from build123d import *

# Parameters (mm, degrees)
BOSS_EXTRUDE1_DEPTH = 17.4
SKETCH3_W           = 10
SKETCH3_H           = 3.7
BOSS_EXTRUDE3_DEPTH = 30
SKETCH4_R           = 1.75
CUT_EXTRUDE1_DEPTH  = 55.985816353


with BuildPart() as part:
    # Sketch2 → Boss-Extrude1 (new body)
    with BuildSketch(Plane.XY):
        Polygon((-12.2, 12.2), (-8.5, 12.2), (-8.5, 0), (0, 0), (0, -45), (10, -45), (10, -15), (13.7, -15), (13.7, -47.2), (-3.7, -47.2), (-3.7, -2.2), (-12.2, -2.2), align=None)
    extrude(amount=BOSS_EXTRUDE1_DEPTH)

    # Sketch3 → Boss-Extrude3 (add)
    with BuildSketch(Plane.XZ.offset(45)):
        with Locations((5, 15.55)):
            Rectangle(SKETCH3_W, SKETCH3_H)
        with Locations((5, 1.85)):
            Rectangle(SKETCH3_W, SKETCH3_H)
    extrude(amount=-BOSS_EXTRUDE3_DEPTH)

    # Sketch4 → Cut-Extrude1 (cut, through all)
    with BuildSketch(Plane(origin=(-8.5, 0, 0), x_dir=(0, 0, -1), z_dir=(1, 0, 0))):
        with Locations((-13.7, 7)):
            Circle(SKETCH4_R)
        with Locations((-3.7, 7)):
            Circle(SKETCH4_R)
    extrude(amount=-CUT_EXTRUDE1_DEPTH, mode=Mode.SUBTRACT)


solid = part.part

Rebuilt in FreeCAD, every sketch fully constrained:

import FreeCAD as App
import Part
import Sketcher

V = App.Vector


def add_polygon(sketch, points):
    """Adds a closed chain of lines whose ends are joined by coincident constraints."""
    first, n = sketch.GeometryCount, len(points)
    for a, b in zip(points, points[1:] + points[:1]):
        sketch.addGeometry(Part.LineSegment(App.Vector(*a, 0), App.Vector(*b, 0)), False)
    for i in range(n):
        sketch.addConstraint(Sketcher.Constraint("Coincident", first + i, 2, first + (i + 1) % n, 1))

doc = App.newDocument("Part")
body = doc.addObject("PartDesign::Body", "Body")

sketch1 = body.newObject("Sketcher::SketchObject", "Sketch")
sketch1.AttachmentSupport = (doc.getObject("XY_Plane"), [""])
sketch1.MapMode = "FlatFace"
add_polygon(sketch1, [(-8.5, 12.2), (-12.2, 12.2), (-12.2, -2.2), (-3.7, -2.2), (-3.7, -47.2), (13.7, -47.2), (13.7, -15), (10, -15), (10, -45), (0, -45), (0, 0), (-8.5, 0)])
sketch1.addConstraint([
    Sketcher.Constraint("Horizontal", 0),
    Sketcher.Constraint("Vertical", 1),
    Sketcher.Constraint("Horizontal", 2),
    Sketcher.Constraint("Vertical", 3),
    Sketcher.Constraint("Horizontal", 4),
    Sketcher.Constraint("Vertical", 5),
    Sketcher.Constraint("Horizontal", 6),
    Sketcher.Constraint("Vertical", 7),
    Sketcher.Constraint("Horizontal", 8),
    Sketcher.Constraint("Vertical", 9),
    Sketcher.Constraint("Horizontal", 10),
    Sketcher.Constraint("Vertical", 11),
    Sketcher.Constraint("Coincident", 9, 2, -1, 1),
    Sketcher.Constraint("Equal", 0, 6),
    Sketcher.Constraint("Equal", 2, 10),
    Sketcher.Constraint("Equal", 3, 9),
    Sketcher.Constraint("DistanceX", 8, 2, 8, 1, 10.0),
    Sketcher.Constraint("DistanceY", 3, 2, 3, 1, 45.0),
    Sketcher.Constraint("DistanceY", 7, 2, 7, 1, 30.0),
    Sketcher.Constraint("DistanceX", 0, 2, 0, 1, 3.7),
    Sketcher.Constraint("DistanceX", 2, 1, 2, 2, 8.5),
    Sketcher.Constraint("DistanceY", 1, 2, 1, 1, 14.4),
    Sketcher.Constraint("DistanceY", 5, 1, 5, 2, 32.2),
])
pad1 = body.newObject("PartDesign::Pad", "Pad")
pad1.Profile = sketch1
pad1.Length = 17.4

sketch2 = body.newObject("Sketcher::SketchObject", "Sketch001")
sketch2.AttachmentSupport = (doc.getObject("XZ_Plane"), [""])
sketch2.MapMode = "FlatFace"
sketch2.AttachmentOffset = App.Placement(V(0, 0, 45), App.Rotation())
add_polygon(sketch2, [(0, 17.4), (0, 13.7), (10, 13.7), (10, 17.4)])
add_polygon(sketch2, [(0, 3.7), (0, 0), (10, 0), (10, 3.7)])
sketch2.addConstraint([
    Sketcher.Constraint("Vertical", 0),
    Sketcher.Constraint("Horizontal", 1),
    Sketcher.Constraint("Vertical", 2),
    Sketcher.Constraint("Horizontal", 3),
    Sketcher.Constraint("Vertical", 4),
    Sketcher.Constraint("Horizontal", 5),
    Sketcher.Constraint("Vertical", 6),
    Sketcher.Constraint("Horizontal", 7),
    Sketcher.Constraint("Coincident", 4, 2, -1, 1),
    Sketcher.Constraint("PointOnObject", 0, 2, -2),
    Sketcher.Constraint("Vertical", 2, 2, 5, 2),
    Sketcher.Constraint("Equal", 2, 4),
    Sketcher.Constraint("DistanceX", 1, 1, 1, 2, 10.0),
    Sketcher.Constraint("DistanceY", 0, 2, 0, 1, 3.7),
    Sketcher.Constraint("DistanceY", 6, 2, 1, 2, 10.0),
])
pad2 = body.newObject("PartDesign::Pad", "Pad001")
pad2.Profile = sketch2
pad2.Length = 30
pad2.Reversed = True

sketch3 = body.newObject("Sketcher::SketchObject", "Sketch002")
sketch3.AttachmentSupport = (doc.getObject("YZ_Plane"), [""])
sketch3.MapMode = "FlatFace"
sketch3.AttachmentOffset = App.Placement(V(0, 0, -8.5), App.Rotation())
sketch3.addGeometry([
    Part.Circle(V(7, 13.7, 0), V(0, 0, 1), 1.8),
    Part.Circle(V(7, 3.7, 0), V(0, 0, 1), 1.8),
], False)
sketch3.addConstraint([
    Sketcher.Constraint("Equal", 0, 1),
    Sketcher.Constraint("Vertical", 0, 3, 1, 3),
    Sketcher.Constraint("Diameter", 0, 3.5),
    Sketcher.Constraint("DistanceX", -1, 1, 0, 3, 7.0),
    Sketcher.Constraint("DistanceY", 1, 3, 0, 3, 10.0),
    Sketcher.Constraint("DistanceY", -1, 1, 0, 3, 13.7),
])
pocket1 = body.newObject("PartDesign::Pocket", "Pocket")
pocket1.Profile = sketch3
pocket1.Type = "ThroughAll"

doc.recompute()
